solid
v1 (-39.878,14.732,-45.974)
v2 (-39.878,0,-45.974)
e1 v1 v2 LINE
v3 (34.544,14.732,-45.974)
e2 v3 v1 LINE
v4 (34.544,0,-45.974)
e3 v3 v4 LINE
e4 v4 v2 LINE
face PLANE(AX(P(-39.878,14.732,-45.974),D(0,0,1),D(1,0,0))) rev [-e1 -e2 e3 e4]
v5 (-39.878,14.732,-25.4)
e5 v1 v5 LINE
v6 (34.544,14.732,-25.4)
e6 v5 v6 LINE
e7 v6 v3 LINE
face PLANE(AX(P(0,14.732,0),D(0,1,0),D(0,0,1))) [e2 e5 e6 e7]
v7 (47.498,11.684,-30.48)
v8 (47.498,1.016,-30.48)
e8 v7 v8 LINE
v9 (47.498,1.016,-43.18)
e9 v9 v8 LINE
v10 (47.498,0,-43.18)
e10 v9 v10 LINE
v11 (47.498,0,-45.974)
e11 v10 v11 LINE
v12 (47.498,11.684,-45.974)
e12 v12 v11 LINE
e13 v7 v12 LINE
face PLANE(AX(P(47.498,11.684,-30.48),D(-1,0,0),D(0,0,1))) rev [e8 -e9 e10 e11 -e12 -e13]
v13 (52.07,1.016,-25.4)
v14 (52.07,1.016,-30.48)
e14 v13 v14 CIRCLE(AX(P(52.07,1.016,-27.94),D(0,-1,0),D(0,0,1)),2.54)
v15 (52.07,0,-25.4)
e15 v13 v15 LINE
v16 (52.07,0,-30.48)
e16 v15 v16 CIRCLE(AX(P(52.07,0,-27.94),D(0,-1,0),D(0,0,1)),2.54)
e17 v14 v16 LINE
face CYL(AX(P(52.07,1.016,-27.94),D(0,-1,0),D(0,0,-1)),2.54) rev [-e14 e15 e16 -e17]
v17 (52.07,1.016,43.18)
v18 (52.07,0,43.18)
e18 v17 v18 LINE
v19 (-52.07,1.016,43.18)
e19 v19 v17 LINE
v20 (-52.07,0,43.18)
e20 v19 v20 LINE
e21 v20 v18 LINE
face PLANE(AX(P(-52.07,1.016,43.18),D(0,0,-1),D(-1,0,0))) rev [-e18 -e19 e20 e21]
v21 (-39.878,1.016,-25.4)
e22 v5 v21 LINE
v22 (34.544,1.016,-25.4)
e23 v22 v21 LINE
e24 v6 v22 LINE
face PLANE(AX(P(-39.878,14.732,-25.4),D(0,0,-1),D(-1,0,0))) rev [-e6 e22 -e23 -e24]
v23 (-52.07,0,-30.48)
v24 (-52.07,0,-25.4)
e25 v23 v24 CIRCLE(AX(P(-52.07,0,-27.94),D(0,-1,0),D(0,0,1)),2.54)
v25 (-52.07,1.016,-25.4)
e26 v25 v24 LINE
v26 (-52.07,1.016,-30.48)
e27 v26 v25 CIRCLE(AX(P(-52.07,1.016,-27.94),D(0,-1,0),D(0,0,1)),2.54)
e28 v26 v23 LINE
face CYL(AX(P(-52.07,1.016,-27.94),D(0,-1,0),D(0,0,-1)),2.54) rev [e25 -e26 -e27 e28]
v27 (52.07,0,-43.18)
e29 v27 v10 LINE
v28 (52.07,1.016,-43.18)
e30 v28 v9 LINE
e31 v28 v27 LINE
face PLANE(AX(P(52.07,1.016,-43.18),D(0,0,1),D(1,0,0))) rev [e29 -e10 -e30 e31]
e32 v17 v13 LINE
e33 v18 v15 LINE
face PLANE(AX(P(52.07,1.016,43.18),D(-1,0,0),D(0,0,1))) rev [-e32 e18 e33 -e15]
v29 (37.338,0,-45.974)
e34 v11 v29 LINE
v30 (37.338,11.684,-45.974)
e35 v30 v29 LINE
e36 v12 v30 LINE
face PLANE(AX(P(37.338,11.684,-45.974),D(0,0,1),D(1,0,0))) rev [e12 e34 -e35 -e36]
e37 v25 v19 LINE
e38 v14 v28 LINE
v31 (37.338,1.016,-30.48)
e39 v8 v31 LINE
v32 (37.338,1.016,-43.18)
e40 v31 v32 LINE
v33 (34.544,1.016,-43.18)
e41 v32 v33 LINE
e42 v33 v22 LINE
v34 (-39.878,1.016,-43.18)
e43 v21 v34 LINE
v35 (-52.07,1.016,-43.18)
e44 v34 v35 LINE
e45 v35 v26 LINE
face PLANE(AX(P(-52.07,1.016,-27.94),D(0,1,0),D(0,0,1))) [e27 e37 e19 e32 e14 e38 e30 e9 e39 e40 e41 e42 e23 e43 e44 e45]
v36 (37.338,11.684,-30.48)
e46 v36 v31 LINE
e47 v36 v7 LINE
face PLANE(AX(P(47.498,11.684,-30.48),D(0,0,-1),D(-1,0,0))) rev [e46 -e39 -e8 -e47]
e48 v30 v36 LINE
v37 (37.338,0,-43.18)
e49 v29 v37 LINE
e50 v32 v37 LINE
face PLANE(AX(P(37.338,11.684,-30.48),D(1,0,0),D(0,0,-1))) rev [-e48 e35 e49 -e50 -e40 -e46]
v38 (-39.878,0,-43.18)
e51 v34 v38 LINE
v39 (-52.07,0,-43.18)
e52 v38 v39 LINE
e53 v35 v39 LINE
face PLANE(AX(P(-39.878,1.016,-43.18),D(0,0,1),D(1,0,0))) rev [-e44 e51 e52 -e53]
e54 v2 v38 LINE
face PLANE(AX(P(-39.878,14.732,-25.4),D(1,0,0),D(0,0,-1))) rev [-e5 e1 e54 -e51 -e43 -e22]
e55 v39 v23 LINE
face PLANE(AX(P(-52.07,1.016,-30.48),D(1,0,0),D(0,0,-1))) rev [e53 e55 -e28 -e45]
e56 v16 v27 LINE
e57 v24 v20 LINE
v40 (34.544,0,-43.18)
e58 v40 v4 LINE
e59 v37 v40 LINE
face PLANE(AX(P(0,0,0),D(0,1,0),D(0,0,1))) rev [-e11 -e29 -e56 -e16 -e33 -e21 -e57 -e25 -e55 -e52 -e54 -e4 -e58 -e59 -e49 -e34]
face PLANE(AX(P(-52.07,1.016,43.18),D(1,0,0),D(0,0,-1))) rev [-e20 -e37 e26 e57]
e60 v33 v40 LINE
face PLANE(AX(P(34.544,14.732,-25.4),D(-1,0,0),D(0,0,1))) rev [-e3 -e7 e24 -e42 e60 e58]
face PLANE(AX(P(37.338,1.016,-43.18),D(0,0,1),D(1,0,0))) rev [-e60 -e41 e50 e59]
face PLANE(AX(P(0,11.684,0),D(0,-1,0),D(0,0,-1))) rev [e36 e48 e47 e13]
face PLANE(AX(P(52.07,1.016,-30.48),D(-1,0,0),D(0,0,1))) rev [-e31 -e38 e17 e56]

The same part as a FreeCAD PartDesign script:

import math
import FreeCAD as App
import Part
import Sketcher
from FreeCAD import Vector
Q = App.Units.Quantity

doc = App.newDocument("Part")
body = doc.addObject("PartDesign::Body", "Body")

# Sketch on XZ plane
sketch1 = body.newObject("Sketcher::SketchObject", "Sketch")
sketch1.AttachmentSupport = (doc.getObject("XZ_Plane"), [""])
sketch1.MapMode = "FlatFace"
sketch1.addGeometry([
    Part.LineSegment(Vector(-40, -46, 0), Vector(-40, -25, 0)),
    Part.LineSegment(Vector(-40, -25, 0), Vector(35, -25, 0)),
    Part.LineSegment(Vector(35, -25, 0), Vector(35, -46, 0)),
    Part.LineSegment(Vector(35, -46, 0), Vector(-40, -46, 0)),
], False)
sketch1.addConstraint([
    Sketcher.Constraint("Coincident", 0, 2, 1, 1),
    Sketcher.Constraint("Coincident", 1, 2, 2, 1),
    Sketcher.Constraint("Coincident", 2, 2, 3, 1),
    Sketcher.Constraint("Coincident", 3, 2, 0, 1),
    Sketcher.Constraint("Vertical", 0),
    Sketcher.Constraint("Horizontal", 1),
    Sketcher.Constraint("Vertical", 2),
    Sketcher.Constraint("Horizontal", 3),
    Sketcher.Constraint("DistanceY", 0, 2, -1, 1, Q("1 in")),
    Sketcher.Constraint("DistanceX", 1, 1, 1, 2, Q("2.93 in")),
    Sketcher.Constraint("DistanceY", 0, 1, 0, 2, Q("0.81 in")),
    Sketcher.Constraint("DistanceX", 0, 2, -1, 1, Q("1.57 in")),
])
pad1 = body.newObject("PartDesign::Pad", "Pad")
pad1.Profile = sketch1
pad1.Length = Q("0.58 in")
pad1.Reversed = True
body2 = doc.addObject("PartDesign::Body", "Body001")

# Sketch on XZ plane
sketch2 = body2.newObject("Sketcher::SketchObject", "Sketch001")
sketch2.AttachmentSupport = (doc.getObject("XZ_Plane001"), [""])
sketch2.MapMode = "FlatFace"
sketch2.addGeometry([
    Part.LineSegment(Vector(37, -46, 0), Vector(37, -30, 0)),
    Part.LineSegment(Vector(37, -30, 0), Vector(47, -30, 0)),
    Part.LineSegment(Vector(47, -30, 0), Vector(47, -46, 0)),
    Part.LineSegment(Vector(47, -46, 0), Vector(37, -46, 0)),
], False)
sketch2.addConstraint([
    Sketcher.Constraint("Coincident", 0, 2, 1, 1),
    Sketcher.Constraint("Coincident", 1, 2, 2, 1),
    Sketcher.Constraint("Coincident", 2, 2, 3, 1),
    Sketcher.Constraint("Coincident", 3, 2, 0, 1),
    Sketcher.Constraint("Vertical", 0),
    Sketcher.Constraint("Horizontal", 1),
    Sketcher.Constraint("Vertical", 2),
    Sketcher.Constraint("Horizontal", 3),
    Sketcher.Constraint("DistanceX", 1, 1, 1, 2, Q("0.4 in")),
    Sketcher.Constraint("DistanceY", 0, 1, 0, 2, Q("0.61 in")),
    Sketcher.Constraint("DistanceY", 0, 2, -1, 1, Q("1.2 in")),
    Sketcher.Constraint("DistanceX", -1, 1, 0, 2, Q("1.47 in")),
])
pad2 = body2.newObject("PartDesign::Pad", "Pad001")
pad2.Profile = sketch2
pad2.Length = Q("0.46 in")
pad2.Reversed = True
body.AllowCompound = True
doc.recompute()

boolean = body.newObject("PartDesign::Boolean", "Boolean")
boolean.Type = "Fuse"
boolean.addObjects([body2])

# Sketch on XZ plane
sketch3 = body.newObject("Sketcher::SketchObject", "Sketch002")
sketch3.AttachmentSupport = (doc.getObject("XZ_Plane"), [""])
sketch3.MapMode = "FlatFace"
sketch3.addGeometry([
    Part.LineSegment(Vector(-39.9, -43.2, 0), Vector(-52.1, -43.2, 0)),  # 0
    Part.LineSegment(Vector(-52.1, -43.2, 0), Vector(-52.1, -30.5, 0)),  # 1
    Part.ArcOfCircle(Part.Circle(Vector(-52.1, -27.9, 0), Vector(0, 0, 1), 2.5), math.radians(-90), math.radians(90)),  # 2
    Part.LineSegment(Vector(-52.1, -25.4, 0), Vector(-52.1, 43.2, 0)),  # 3
    Part.LineSegment(Vector(-52.1, 43.2, 0), Vector(52.1, 43.2, 0)),  # 4
    Part.LineSegment(Vector(52.1, 43.2, 0), Vector(52.1, -25.4, 0)),  # 5
    Part.ArcOfCircle(Part.Circle(Vector(52.1, -27.9, 0), Vector(0, 0, 1), 2.5), math.radians(90), math.radians(270)),  # 6
    Part.LineSegment(Vector(52.1, -30.5, 0), Vector(52.1, -43.2, 0)),  # 7
    Part.LineSegment(Vector(52.1, -43.2, 0), Vector(47.5, -43.2, 0)),  # 8
    Part.LineSegment(Vector(47.5, -43.2, 0), Vector(47.5, -30.5, 0)),  # 9
    Part.LineSegment(Vector(47.5, -30.5, 0), Vector(37.3, -30.5, 0)),  # 10
    Part.LineSegment(Vector(37.3, -30.5, 0), Vector(37.3, -43.2, 0)),  # 11
    Part.LineSegment(Vector(37.3, -43.2, 0), Vector(34.5, -43.2, 0)),  # 12
    Part.LineSegment(Vector(34.5, -43.2, 0), Vector(34.5, -25.4, 0)),  # 13
    Part.LineSegment(Vector(34.5, -25.4, 0), Vector(-39.9, -25.4, 0)),  # 14
    Part.LineSegment(Vector(-39.9, -25.4, 0), Vector(-39.9, -43.2, 0)),  # 15
], False)
sketch3.addConstraint([
    Sketcher.Constraint("Coincident", 0, 2, 1, 1),
    Sketcher.Constraint("Coincident", 1, 2, 2, 1),
    Sketcher.Constraint("Coincident", 2, 2, 3, 1),
    Sketcher.Constraint("Coincident", 3, 2, 4, 1),
    Sketcher.Constraint("Coincident", 4, 2, 5, 1),
    Sketcher.Constraint("Coincident", 5, 2, 6, 1),
    Sketcher.Constraint("Coincident", 6, 2, 7, 1),
    Sketcher.Constraint("Coincident", 7, 2, 8, 1),
    Sketcher.Constraint("Coincident", 8, 2, 9, 1),
    Sketcher.Constraint("Coincident", 9, 2, 10, 1),
    Sketcher.Constraint("Coincident", 10, 2, 11, 1),
    Sketcher.Constraint("Coincident", 11, 2, 12, 1),
    Sketcher.Constraint("Coincident", 12, 2, 13, 1),
    Sketcher.Constraint("Coincident", 13, 2, 14, 1),
    Sketcher.Constraint("Coincident", 14, 2, 15, 1),
    Sketcher.Constraint("Coincident", 15, 2, 0, 1),
    Sketcher.Constraint("Horizontal", 0),
    Sketcher.Constraint("Vertical", 1),
    Sketcher.Constraint("Vertical", 3),
    Sketcher.Constraint("Horizontal", 4),
    Sketcher.Constraint("Vertical", 5),
    Sketcher.Constraint("Vertical", 7),
    Sketcher.Constraint("Horizontal", 8),
    Sketcher.Constraint("Vertical", 9),
    Sketcher.Constraint("Horizontal", 10),
    Sketcher.Constraint("Vertical", 11),
    Sketcher.Constraint("Horizontal", 12),
    Sketcher.Constraint("Vertical", 13),
    Sketcher.Constraint("Horizontal", 14),
    Sketcher.Constraint("Vertical", 15),
    Sketcher.Constraint("Equal", 2, 6),
    Sketcher.Constraint("Symmetric", 0, 2, 4, 2, -1, 1),
    Sketcher.Constraint("Symmetric", 3, 2, 7, 2, -1, 1),
    Sketcher.Constraint("Symmetric", 2, 3, 6, 3, -2),
    Sketcher.Constraint("Horizontal", 6, 2, 9, 2),
    Sketcher.Constraint("Horizontal", 8, 2, 11, 2),
    Sketcher.Constraint("Horizontal", 5, 2, 13, 2),
    Sketcher.Constraint("Vertical", 2, 3, 0, 2),
    Sketcher.Constraint("Vertical", 1, 2, 2, 2),
    Sketcher.Constraint("Radius", 2, Q("0.1 in")),
    Sketcher.Constraint("DistanceX", 4, 1, 4, 2, Q("4.1 in")),
    Sketcher.Constraint("DistanceX", 10, 2, 10, 1, Q("0.4 in")),
    Sketcher.Constraint("DistanceY", 1, 1, 1, 2, Q("0.5 in")),
    Sketcher.Constraint("DistanceY", 3, 1, 3, 2, Q("2.7 in")),
    Sketcher.Constraint("DistanceX", 0, 2, 0, 1, Q("0.48 in")),
    Sketcher.Constraint("DistanceX", 8, 2, 8, 1, Q("0.18 in")),
    Sketcher.Constraint("DistanceX", 12, 2, 12, 1, Q("0.11 in")),
])
pad3 = body.newObject("PartDesign::Pad", "Pad002")
pad3.Profile = sketch3
pad3.Length = Q("0.04 in")
pad3.Reversed = True

doc.recompute()
